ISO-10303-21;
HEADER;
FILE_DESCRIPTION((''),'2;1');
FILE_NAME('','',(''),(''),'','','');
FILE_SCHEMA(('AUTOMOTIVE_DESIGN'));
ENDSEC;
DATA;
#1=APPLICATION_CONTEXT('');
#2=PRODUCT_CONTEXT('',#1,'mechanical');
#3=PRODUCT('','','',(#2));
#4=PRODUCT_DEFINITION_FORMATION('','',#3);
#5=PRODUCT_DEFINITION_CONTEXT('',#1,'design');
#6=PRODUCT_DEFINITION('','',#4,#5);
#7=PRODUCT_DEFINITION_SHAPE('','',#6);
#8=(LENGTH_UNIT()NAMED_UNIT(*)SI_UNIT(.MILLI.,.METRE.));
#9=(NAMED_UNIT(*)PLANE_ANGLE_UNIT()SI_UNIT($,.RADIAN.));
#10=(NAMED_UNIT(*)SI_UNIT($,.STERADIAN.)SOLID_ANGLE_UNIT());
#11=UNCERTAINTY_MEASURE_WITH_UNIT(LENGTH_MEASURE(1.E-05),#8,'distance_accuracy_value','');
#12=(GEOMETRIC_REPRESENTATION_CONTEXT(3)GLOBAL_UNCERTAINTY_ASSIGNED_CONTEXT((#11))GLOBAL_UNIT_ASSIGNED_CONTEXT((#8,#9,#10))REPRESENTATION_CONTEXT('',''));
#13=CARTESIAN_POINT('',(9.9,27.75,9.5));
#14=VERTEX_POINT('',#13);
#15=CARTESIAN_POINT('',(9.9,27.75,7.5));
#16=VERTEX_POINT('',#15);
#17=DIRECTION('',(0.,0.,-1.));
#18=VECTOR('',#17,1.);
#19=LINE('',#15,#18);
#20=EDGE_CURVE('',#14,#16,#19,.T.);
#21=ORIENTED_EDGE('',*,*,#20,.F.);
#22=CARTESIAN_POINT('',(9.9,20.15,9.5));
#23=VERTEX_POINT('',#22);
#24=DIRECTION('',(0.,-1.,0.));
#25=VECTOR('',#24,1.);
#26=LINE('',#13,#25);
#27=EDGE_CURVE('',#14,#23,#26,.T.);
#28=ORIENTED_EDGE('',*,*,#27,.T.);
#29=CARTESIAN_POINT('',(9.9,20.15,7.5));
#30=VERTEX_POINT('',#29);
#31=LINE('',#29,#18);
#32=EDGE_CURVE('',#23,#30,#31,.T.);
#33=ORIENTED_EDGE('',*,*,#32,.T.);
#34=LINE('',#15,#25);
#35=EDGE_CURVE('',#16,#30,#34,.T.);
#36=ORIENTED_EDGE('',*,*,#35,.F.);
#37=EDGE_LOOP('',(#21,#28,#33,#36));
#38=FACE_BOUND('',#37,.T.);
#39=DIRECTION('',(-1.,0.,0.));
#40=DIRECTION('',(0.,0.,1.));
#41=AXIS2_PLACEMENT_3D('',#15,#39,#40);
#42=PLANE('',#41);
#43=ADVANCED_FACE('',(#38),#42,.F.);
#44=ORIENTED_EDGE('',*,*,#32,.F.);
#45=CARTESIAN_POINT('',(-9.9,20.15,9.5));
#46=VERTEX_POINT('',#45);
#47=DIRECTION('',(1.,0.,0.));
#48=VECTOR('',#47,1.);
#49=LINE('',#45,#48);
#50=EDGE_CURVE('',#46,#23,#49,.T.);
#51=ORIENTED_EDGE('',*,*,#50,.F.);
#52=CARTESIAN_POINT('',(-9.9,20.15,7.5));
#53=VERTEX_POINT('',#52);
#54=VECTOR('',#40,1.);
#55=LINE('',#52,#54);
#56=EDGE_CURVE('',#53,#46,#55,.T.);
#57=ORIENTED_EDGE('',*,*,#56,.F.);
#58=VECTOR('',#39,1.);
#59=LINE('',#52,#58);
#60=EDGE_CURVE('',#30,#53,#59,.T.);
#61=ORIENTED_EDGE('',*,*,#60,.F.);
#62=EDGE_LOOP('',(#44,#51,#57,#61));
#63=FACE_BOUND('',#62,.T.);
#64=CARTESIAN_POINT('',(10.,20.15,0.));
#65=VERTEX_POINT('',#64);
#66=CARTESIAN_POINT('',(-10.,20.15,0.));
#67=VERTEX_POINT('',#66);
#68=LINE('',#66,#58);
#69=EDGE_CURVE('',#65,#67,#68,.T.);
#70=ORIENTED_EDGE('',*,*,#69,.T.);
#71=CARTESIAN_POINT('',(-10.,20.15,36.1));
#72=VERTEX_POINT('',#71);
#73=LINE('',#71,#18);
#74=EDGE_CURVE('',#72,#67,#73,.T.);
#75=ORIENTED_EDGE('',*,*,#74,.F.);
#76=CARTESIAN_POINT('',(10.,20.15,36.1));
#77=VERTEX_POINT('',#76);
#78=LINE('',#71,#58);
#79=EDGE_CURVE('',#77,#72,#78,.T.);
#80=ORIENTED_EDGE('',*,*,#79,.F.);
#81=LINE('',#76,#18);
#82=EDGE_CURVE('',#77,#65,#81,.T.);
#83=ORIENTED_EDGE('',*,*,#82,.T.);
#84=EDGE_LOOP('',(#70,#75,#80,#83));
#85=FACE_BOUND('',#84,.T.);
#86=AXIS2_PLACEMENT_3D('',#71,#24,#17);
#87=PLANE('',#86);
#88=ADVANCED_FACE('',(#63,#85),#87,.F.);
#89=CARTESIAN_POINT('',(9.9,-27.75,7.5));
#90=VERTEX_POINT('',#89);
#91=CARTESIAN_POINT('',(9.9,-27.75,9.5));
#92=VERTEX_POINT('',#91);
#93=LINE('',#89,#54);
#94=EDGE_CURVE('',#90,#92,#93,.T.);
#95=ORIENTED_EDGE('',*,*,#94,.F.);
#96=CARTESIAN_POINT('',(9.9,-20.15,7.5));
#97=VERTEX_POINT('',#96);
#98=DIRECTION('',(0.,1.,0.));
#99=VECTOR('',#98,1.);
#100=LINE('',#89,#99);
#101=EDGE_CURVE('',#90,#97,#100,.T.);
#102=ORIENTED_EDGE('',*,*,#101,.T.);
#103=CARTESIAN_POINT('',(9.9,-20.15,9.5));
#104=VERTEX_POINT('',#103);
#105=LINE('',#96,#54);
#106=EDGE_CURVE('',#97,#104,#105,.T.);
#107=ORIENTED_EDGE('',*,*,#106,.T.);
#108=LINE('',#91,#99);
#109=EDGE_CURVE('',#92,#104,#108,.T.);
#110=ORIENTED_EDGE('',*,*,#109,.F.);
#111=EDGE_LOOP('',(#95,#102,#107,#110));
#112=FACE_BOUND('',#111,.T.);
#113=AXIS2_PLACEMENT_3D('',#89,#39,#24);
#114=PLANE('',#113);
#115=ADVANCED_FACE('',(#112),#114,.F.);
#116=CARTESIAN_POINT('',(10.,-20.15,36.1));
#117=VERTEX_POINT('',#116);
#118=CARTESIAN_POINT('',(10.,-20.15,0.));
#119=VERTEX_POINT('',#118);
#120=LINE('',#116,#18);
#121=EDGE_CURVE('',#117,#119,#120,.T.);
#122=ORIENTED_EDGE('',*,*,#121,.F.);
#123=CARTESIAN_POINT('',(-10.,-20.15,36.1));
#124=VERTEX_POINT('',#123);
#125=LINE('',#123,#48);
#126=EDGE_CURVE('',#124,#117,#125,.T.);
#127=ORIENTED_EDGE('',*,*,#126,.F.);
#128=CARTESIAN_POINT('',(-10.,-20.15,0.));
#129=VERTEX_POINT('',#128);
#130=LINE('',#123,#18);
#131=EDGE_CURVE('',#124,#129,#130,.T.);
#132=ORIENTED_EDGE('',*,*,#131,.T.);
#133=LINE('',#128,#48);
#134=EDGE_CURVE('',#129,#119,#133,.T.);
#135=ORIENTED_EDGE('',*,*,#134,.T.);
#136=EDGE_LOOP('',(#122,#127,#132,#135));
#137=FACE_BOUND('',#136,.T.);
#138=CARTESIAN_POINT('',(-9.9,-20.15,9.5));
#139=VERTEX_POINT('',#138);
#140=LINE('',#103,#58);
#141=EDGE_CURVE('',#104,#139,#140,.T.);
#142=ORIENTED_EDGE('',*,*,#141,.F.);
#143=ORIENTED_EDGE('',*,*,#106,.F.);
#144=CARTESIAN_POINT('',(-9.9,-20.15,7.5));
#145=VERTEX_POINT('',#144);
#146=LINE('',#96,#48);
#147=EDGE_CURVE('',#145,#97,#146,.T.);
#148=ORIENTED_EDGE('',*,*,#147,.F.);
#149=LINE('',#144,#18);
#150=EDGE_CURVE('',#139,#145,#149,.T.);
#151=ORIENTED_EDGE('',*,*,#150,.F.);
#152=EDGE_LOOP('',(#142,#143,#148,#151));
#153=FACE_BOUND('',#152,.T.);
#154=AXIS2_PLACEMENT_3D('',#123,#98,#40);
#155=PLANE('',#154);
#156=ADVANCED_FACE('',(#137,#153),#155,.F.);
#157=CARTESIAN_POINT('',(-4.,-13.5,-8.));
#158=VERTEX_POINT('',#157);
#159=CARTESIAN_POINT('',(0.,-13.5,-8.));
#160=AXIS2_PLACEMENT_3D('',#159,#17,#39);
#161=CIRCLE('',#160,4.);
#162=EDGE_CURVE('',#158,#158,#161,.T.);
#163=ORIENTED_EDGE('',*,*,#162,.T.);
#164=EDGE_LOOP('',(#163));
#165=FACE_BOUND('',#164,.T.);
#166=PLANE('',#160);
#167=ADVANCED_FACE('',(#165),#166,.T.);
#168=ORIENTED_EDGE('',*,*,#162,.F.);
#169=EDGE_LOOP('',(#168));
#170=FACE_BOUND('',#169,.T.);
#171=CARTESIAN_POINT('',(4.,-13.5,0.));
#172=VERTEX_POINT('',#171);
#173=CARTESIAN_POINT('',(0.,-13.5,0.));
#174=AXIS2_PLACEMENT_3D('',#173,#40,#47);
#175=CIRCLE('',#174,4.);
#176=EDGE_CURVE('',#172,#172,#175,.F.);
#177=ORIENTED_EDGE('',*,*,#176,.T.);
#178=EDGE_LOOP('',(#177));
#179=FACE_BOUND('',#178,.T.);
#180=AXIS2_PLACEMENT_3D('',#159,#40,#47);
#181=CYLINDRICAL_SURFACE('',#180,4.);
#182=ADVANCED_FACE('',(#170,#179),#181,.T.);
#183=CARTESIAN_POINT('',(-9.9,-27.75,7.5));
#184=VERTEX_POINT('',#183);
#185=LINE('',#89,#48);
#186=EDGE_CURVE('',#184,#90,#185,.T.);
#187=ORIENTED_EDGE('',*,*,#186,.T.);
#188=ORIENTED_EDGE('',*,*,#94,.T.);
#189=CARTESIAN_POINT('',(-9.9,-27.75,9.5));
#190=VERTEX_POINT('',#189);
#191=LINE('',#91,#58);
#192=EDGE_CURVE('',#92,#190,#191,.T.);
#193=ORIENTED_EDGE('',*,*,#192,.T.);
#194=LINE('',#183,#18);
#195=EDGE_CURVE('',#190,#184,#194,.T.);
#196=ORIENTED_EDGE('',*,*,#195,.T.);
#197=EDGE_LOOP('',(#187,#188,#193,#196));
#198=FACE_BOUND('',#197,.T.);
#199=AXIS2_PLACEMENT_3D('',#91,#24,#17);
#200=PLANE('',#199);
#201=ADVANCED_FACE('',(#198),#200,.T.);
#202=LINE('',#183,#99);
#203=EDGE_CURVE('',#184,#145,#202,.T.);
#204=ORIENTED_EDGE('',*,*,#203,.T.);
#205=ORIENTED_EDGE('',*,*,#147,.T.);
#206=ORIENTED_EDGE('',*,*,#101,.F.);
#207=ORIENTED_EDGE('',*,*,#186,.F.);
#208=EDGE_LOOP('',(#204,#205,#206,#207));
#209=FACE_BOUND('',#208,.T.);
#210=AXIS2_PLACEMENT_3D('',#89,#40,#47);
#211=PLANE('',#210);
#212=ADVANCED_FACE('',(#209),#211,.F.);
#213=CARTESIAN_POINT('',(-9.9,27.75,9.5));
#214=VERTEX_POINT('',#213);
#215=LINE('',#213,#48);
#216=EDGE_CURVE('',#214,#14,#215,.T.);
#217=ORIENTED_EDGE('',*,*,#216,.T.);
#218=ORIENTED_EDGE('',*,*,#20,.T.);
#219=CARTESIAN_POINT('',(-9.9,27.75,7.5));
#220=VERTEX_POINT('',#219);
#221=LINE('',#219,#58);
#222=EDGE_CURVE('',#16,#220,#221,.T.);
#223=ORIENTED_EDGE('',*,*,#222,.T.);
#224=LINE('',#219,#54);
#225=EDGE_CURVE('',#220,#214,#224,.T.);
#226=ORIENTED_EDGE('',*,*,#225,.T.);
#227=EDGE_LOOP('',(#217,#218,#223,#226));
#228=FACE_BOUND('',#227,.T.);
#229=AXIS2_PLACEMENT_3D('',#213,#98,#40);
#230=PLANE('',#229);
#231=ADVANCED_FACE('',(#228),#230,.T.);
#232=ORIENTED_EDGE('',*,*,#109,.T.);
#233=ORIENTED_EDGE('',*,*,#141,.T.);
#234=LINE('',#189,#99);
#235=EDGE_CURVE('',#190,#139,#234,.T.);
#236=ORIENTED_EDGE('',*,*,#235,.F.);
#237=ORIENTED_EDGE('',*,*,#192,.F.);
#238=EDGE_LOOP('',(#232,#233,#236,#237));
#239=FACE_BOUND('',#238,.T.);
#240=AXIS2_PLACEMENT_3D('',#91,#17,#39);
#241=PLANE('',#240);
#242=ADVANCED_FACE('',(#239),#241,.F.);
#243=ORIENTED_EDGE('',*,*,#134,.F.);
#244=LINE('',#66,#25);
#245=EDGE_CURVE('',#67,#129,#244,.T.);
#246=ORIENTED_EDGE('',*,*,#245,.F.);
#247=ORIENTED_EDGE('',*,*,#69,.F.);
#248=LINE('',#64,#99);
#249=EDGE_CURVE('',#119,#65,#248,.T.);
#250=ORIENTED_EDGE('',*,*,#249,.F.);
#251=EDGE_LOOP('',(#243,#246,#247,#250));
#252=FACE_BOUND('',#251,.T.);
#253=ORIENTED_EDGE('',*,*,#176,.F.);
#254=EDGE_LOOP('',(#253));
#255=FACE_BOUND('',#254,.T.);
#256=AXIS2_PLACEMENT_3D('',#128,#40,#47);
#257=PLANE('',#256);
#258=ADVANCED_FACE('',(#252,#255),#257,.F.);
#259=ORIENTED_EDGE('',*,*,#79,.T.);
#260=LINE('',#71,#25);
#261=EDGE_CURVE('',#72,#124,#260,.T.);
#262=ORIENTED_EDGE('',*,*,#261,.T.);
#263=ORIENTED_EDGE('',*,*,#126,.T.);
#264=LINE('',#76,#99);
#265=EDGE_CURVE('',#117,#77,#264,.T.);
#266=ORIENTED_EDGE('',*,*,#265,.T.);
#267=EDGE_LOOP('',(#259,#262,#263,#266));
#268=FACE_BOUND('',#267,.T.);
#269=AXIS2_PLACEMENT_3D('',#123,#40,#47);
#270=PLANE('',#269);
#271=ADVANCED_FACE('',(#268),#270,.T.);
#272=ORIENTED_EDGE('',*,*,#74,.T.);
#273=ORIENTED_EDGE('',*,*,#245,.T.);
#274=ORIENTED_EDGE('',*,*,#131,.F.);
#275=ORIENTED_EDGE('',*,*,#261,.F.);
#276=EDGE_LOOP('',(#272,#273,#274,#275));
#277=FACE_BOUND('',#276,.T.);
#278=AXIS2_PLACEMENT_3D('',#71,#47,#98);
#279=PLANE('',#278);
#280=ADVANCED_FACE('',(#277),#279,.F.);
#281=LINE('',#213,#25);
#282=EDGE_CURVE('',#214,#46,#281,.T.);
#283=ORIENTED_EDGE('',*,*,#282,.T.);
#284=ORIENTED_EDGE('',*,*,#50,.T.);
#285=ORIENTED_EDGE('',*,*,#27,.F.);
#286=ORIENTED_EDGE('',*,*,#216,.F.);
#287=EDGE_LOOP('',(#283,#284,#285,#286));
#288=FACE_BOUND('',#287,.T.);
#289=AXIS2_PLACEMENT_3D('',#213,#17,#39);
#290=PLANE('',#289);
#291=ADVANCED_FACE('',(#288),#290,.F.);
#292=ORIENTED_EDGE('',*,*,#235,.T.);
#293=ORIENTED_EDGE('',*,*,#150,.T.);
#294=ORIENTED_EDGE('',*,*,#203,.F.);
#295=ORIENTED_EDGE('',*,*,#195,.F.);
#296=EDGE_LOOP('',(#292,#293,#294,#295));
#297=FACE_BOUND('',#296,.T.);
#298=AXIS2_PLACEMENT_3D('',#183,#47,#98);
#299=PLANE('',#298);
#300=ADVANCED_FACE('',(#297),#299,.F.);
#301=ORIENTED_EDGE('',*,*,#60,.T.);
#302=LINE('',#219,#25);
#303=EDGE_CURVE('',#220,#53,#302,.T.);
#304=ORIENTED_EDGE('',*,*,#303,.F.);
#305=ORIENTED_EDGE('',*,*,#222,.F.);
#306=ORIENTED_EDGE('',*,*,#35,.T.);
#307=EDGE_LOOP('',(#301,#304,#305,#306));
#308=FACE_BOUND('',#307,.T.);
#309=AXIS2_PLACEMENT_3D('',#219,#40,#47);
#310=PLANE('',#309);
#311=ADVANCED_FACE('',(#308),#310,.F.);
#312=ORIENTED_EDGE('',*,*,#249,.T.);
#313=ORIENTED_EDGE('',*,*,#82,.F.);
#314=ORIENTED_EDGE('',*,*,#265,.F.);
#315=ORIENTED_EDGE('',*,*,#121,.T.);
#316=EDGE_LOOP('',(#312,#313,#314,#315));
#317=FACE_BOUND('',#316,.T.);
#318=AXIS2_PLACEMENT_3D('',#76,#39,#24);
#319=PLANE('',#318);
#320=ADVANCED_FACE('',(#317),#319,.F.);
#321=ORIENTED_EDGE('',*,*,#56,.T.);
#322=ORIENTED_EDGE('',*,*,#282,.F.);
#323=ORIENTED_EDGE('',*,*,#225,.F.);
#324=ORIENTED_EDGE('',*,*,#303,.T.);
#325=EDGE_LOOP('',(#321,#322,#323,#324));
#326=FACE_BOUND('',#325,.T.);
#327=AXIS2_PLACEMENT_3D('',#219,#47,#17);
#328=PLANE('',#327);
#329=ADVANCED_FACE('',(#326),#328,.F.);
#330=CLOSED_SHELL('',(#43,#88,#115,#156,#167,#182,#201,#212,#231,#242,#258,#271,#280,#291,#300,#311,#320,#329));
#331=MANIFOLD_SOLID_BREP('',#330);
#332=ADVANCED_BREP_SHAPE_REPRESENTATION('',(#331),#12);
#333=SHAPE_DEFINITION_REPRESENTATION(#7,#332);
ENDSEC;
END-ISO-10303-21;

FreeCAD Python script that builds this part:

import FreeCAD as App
import Part
import Sketcher

V = App.Vector

doc = App.newDocument("Part")
body = doc.addObject("PartDesign::Body", "Body")

# Sketch on XY plane
sketch1 = body.newObject("Sketcher::SketchObject", "Sketch")
sketch1.AttachmentSupport = (doc.getObject("XY_Plane"), [""])
sketch1.MapMode = "FlatFace"
sketch1.addGeometry([
    Part.LineSegment(V(-10, 20, 0), V(-10, -20, 0)),
    Part.LineSegment(V(-10, -20, 0), V(10, -20, 0)),
    Part.LineSegment(V(10, -20, 0), V(10, 20, 0)),
    Part.LineSegment(V(10, 20, 0), V(-10, 20, 0)),
], False)
sketch1.addConstraint([
    Sketcher.Constraint("Coincident", 0, 2, 1, 1),
    Sketcher.Constraint("Coincident", 1, 2, 2, 1),
    Sketcher.Constraint("Coincident", 2, 2, 3, 1),
    Sketcher.Constraint("Coincident", 3, 2, 0, 1),
    Sketcher.Constraint("Vertical", 0),
    Sketcher.Constraint("Horizontal", 1),
    Sketcher.Constraint("Vertical", 2),
    Sketcher.Constraint("Horizontal", 3),
    Sketcher.Constraint("Symmetric", 0, 2, 2, 2, -1, 1),
    Sketcher.Constraint("DistanceX", 1, 1, 1, 2, 20.0),
    Sketcher.Constraint("DistanceY", 0, 2, 0, 1, 40.3),
])
pad1 = body.newObject("PartDesign::Pad", "Pad")
pad1.Profile = sketch1
pad1.Length = 36.1

# Sketch on XZ plane
sketch2 = body.newObject("Sketcher::SketchObject", "Sketch001")
sketch2.AttachmentSupport = (doc.getObject("XZ_Plane"), [""])
sketch2.MapMode = "FlatFace"
sketch2.AttachmentOffset = App.Placement(V(0, 0, 20.15), App.Rotation())
sketch2.addGeometry([
    Part.LineSegment(V(-9.9, 9.5, 0), V(-9.9, 7.5, 0)),
    Part.LineSegment(V(-9.9, 7.5, 0), V(9.9, 7.5, 0)),
    Part.LineSegment(V(9.9, 7.5, 0), V(9.9, 9.5, 0)),
    Part.LineSegment(V(9.9, 9.5, 0), V(-9.9, 9.5, 0)),
], False)
sketch2.addConstraint([
    Sketcher.Constraint("Coincident", 0, 2, 1, 1),
    Sketcher.Constraint("Coincident", 1, 2, 2, 1),
    Sketcher.Constraint("Coincident", 2, 2, 3, 1),
    Sketcher.Constraint("Coincident", 3, 2, 0, 1),
    Sketcher.Constraint("Vertical", 0),
    Sketcher.Constraint("Horizontal", 1),
    Sketcher.Constraint("Vertical", 2),
    Sketcher.Constraint("Horizontal", 3),
    Sketcher.Constraint("DistanceY", 0, 2, 0, 1, 2.0),
    Sketcher.Constraint("DistanceX", 1, 1, 1, 2, 19.8),
    Sketcher.Constraint("DistanceX", 0, 2, -1, 1, 9.9),
    Sketcher.Constraint("DistanceY", -1, 1, 0, 2, 7.5),
])
pad2 = body.newObject("PartDesign::Pad", "Pad001")
pad2.Profile = sketch2
pad2.Length = 7.6

# Sketch on XZ plane
sketch3 = body.newObject("Sketcher::SketchObject", "Sketch002")
sketch3.AttachmentSupport = (doc.getObject("XZ_Plane"), [""])
sketch3.MapMode = "FlatFace"
sketch3.AttachmentOffset = App.Placement(V(0, 0, -20.15), App.Rotation())
sketch3.addGeometry([
    Part.LineSegment(V(-9.9, 7.5, 0), V(-9.9, 9.5, 0)),
    Part.LineSegment(V(-9.9, 9.5, 0), V(9.9, 9.5, 0)),
    Part.LineSegment(V(9.9, 9.5, 0), V(9.9, 7.5, 0)),
    Part.LineSegment(V(9.9, 7.5, 0), V(-9.9, 7.5, 0)),
], False)
sketch3.addConstraint([
    Sketcher.Constraint("Coincident", 0, 2, 1, 1),
    Sketcher.Constraint("Coincident", 1, 2, 2, 1),
    Sketcher.Constraint("Coincident", 2, 2, 3, 1),
    Sketcher.Constraint("Coincident", 3, 2, 0, 1),
    Sketcher.Constraint("Vertical", 0),
    Sketcher.Constraint("Horizontal", 1),
    Sketcher.Constraint("Vertical", 2),
    Sketcher.Constraint("Horizontal", 3),
    Sketcher.Constraint("DistanceY", 0, 1, 0, 2, 2.0),
    Sketcher.Constraint("DistanceX", 1, 1, 1, 2, 19.8),
    Sketcher.Constraint("DistanceX", 0, 2, -1, 1, 9.9),
    Sketcher.Constraint("DistanceY", -1, 1, 0, 2, 9.5),
])
pad3 = body.newObject("PartDesign::Pad", "Pad002")
pad3.Profile = sketch3
pad3.Length = 7.6
pad3.Reversed = True

# Sketch on XY plane
sketch4 = body.newObject("Sketcher::SketchObject", "Sketch003")
sketch4.AttachmentSupport = (doc.getObject("XY_Plane"), [""])
sketch4.MapMode = "FlatFace"
sketch4.addGeometry(Part.Circle(V(0, -13.5, 0), V(0, 0, 1), 4), False)
sketch4.addConstraint([
    Sketcher.Constraint("PointOnObject", 0, 3, -2),
    Sketcher.Constraint("Diameter", 0, 8.0),
    Sketcher.Constraint("DistanceY", 0, 3, -1, 1, 13.5),
])
pad4 = body.newObject("PartDesign::Pad", "Pad003")
pad4.Profile = sketch4
pad4.Length = 8
pad4.Reversed = True

doc.recompute()
